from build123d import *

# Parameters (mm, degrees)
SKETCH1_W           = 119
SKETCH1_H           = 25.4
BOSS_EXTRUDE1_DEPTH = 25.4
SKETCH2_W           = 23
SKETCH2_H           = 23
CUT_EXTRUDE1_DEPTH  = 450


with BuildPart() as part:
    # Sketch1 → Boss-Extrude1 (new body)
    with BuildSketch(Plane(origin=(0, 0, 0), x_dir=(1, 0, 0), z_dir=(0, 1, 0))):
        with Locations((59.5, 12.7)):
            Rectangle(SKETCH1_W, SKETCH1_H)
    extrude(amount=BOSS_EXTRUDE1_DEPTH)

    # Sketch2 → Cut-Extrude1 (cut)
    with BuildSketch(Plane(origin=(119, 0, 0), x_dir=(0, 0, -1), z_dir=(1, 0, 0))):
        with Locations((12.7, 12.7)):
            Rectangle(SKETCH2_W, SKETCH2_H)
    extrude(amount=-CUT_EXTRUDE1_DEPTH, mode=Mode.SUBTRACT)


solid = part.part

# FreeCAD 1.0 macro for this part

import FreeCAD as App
import Part
import Sketcher

V = App.Vector
Q = App.Units.Quantity


def add_polygon(sketch, points):
    """Adds a closed chain of lines whose ends are joined by coincident constraints."""
    first, n = sketch.GeometryCount, len(points)
    for a, b in zip(points, points[1:] + points[:1]):
        sketch.addGeometry(Part.LineSegment(App.Vector(*a, 0), App.Vector(*b, 0)), False)
    for i in range(n):
        sketch.addConstraint(Sketcher.Constraint("Coincident", first + i, 2, first + (i + 1) % n, 1))

doc = App.newDocument("Part")
body = doc.addObject("PartDesign::Body", "Body")

# Sketch on XZ plane
sketch1 = body.newObject("Sketcher::SketchObject", "Sketch")
sketch1.AttachmentSupport = (doc.getObject("XZ_Plane"), [""])
sketch1.MapMode = "FlatFace"
add_polygon(sketch1, [(0, -25), (0, 0), (119, 0), (119, -25)])  # lines 0-3
sketch1.addConstraint(Sketcher.Constraint("Vertical", 0))
sketch1.addConstraint(Sketcher.Constraint("Horizontal", 1))
sketch1.addConstraint(Sketcher.Constraint("Vertical", 2))
sketch1.addConstraint(Sketcher.Constraint("Horizontal", 3))
sketch1.addConstraint(Sketcher.Constraint("Coincident", 0, 2, -1, 1))
sketch1.addConstraint(Sketcher.Constraint("DistanceX", 1, 1, 1, 2, Q("119 mm")))
sketch1.addConstraint(Sketcher.Constraint("DistanceY", 0, 1, 0, 2, Q("25.4 mm")))
pad1 = body.newObject("PartDesign::Pad", "Pad")
pad1.Profile = sketch1
pad1.Length = 25.4
pad1.Reversed = True

# Sketch on YZ plane
sketch2 = body.newObject("Sketcher::SketchObject", "Sketch001")
sketch2.AttachmentSupport = (doc.getObject("YZ_Plane"), [""])
sketch2.MapMode = "FlatFace"
sketch2.AttachmentOffset = App.Placement(V(0, 0, 119), App.Rotation())
add_polygon(sketch2, [(24, -1), (1, -1), (1, -24), (24, -24)])  # lines 0-3
sketch2.addConstraint(Sketcher.Constraint("Horizontal", 0))
sketch2.addConstraint(Sketcher.Constraint("Vertical", 1))
sketch2.addConstraint(Sketcher.Constraint("Horizontal", 2))
sketch2.addConstraint(Sketcher.Constraint("Vertical", 3))
sketch2.addConstraint(Sketcher.Constraint("Equal", 2, 1))
sketch2.addConstraint(Sketcher.Constraint("DistanceX", 0, 2, 0, 1, Q("23 mm")))
sketch2.addConstraint(Sketcher.Constraint("DistanceX", -1, 1, 0, 2, Q("1.2 mm")))
sketch2.addConstraint(Sketcher.Constraint("DistanceY", 0, 2, -1, 1, Q("1.2 mm")))
pocket1 = body.newObject("PartDesign::Pocket", "Pocket")
pocket1.Profile = sketch2
pocket1.Length = 450

doc.recompute()
